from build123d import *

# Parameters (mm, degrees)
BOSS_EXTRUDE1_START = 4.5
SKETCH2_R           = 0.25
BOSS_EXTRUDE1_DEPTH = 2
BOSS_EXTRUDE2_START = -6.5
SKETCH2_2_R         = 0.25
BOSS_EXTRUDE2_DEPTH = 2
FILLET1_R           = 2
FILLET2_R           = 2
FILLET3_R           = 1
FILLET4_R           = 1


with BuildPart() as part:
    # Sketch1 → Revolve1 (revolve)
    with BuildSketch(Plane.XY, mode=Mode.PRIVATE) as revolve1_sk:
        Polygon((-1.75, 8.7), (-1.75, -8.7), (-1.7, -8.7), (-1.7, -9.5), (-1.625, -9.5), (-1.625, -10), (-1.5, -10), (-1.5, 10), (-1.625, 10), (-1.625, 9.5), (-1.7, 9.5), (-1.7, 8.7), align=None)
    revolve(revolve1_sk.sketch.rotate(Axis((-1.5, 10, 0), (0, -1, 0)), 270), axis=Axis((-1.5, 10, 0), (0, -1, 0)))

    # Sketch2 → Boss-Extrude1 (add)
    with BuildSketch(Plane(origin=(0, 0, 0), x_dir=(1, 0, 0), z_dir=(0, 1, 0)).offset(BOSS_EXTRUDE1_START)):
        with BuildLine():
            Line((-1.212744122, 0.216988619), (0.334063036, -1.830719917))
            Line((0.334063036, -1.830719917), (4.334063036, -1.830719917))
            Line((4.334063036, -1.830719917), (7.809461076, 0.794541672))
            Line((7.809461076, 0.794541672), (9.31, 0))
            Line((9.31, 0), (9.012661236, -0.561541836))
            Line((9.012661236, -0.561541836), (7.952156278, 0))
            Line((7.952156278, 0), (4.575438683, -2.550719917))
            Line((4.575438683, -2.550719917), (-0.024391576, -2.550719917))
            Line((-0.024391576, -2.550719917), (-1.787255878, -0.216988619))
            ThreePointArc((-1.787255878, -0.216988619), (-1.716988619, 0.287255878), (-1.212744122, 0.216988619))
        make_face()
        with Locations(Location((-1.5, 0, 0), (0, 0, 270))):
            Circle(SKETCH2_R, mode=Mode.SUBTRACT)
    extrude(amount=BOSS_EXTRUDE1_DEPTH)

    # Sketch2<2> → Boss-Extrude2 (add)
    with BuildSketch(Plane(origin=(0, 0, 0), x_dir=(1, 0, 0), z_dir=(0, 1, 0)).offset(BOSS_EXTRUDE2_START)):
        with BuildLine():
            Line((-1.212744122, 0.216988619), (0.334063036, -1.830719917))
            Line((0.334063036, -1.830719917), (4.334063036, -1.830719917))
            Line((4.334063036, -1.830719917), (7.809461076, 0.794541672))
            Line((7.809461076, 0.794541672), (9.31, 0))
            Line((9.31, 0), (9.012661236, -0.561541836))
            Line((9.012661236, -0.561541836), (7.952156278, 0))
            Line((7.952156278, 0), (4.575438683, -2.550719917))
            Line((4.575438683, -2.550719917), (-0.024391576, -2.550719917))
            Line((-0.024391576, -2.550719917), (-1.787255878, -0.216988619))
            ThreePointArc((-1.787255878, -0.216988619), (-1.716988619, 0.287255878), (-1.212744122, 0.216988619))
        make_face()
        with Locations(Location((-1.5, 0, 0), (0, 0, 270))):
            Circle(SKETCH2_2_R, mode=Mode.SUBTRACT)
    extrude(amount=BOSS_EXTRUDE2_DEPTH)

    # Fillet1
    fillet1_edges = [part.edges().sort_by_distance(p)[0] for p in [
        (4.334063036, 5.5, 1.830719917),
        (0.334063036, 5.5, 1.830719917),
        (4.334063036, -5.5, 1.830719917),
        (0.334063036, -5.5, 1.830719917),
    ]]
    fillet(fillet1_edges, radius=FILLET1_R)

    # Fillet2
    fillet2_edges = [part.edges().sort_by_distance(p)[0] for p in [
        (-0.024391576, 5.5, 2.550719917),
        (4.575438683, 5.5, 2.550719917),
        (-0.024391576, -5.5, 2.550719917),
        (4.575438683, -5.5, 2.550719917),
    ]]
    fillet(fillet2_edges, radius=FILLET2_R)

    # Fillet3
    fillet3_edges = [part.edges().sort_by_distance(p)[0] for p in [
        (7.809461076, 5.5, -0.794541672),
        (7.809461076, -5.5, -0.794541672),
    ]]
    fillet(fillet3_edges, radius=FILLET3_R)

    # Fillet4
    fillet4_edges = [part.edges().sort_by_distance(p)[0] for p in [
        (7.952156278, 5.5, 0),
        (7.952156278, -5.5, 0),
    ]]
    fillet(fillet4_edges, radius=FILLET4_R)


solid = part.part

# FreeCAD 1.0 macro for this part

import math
import FreeCAD as App
import Part
import Sketcher
Q = App.Units.Quantity


def edges_at(feature, points):
    """Names of the edges that pass closest to the given points."""
    edges = feature.Shape.Edges
    near = lambda p: min(range(len(edges)), key=lambda i: edges[i].distToShape(Part.Vertex(*p))[0])
    return sorted({f"Edge{near(p) + 1}" for p in points})


def add_polygon(sketch, points):
    """Adds a closed chain of lines whose ends are joined by coincident constraints."""
    first, n = sketch.GeometryCount, len(points)
    for a, b in zip(points, points[1:] + points[:1]):
        sketch.addGeometry(Part.LineSegment(App.Vector(*a, 0), App.Vector(*b, 0)), False)
    for i in range(n):
        sketch.addConstraint(Sketcher.Constraint("Coincident", first + i, 2, first + (i + 1) % n, 1))

doc = App.newDocument("Part")
body = doc.addObject("PartDesign::Body", "Body")

# Sketch on XY plane
sketch1 = doc.addObject("Sketcher::SketchObject", "Sketch")
body.addObject(sketch1)
sketch1.AttachmentSupport = (doc.XY_Plane, [""])
sketch1.MapMode = "FlatFace"
add_polygon(sketch1, [(-1.75, 8.7), (-1.75, -8.7), (-1.7, -8.7), (-1.7, -9.5), (-1.62, -9.5), (-1.62, -10), (-1.5, -10), (-1.5, 10), (-1.62, 10), (-1.62, 9.5), (-1.7, 9.5), (-1.7, 8.7)])  # lines 0-11
sketch1.addGeometry(Part.LineSegment(App.Vector(-1.5, 10, 0), App.Vector(-1.5, -10, 0)), True)  # axis
sketch1.addConstraint([
    Sketcher.Constraint("Vertical", 0),
    Sketcher.Constraint("Horizontal", 1),
    Sketcher.Constraint("Vertical", 2),
    Sketcher.Constraint("Horizontal", 3),
    Sketcher.Constraint("Vertical", 4),
    Sketcher.Constraint("Horizontal", 5),
    Sketcher.Constraint("Vertical", 6),
    Sketcher.Constraint("Horizontal", 7),
    Sketcher.Constraint("Vertical", 8),
    Sketcher.Constraint("Horizontal", 9),
    Sketcher.Constraint("Vertical", 10),
    Sketcher.Constraint("Horizontal", 11),
    Sketcher.Constraint("Vertical", 12),
    Sketcher.Constraint("Coincident", 12, 1, 6, 2),
    Sketcher.Constraint("Symmetric", 4, 2, 7, 2, -1),
    Sketcher.Constraint("Symmetric", 2, 2, 9, 2, -1),
    Sketcher.Constraint("Horizontal", 4, 2, 12, 2),
    Sketcher.Constraint("Equal", 2, 10),
    Sketcher.Constraint("DistanceY", 6, 1, 6, 2, Q("20 mm")),
    Sketcher.Constraint("DistanceY", 0, 2, 0, 1, Q("17.4 mm")),
    Sketcher.Constraint("DistanceY", 2, 2, 2, 1, Q("0.8 mm")),
    Sketcher.Constraint("DistanceX", 1, 1, 1, 2, Q("0.05 mm")),
    Sketcher.Constraint("DistanceX", 1, 2, -1, 1, Q("1.7 mm")),
    Sketcher.Constraint("DistanceX", 5, 2, -1, 1, Q("1.5 mm")),
    Sketcher.Constraint("DistanceX", 3, 1, 3, 2, Q("0.075 mm")),
])
revolution = doc.addObject("PartDesign::Revolution", "Revolution")
body.addObject(revolution)
revolution.Profile = sketch1
revolution.ReferenceAxis = (sketch1, ["Axis0"])
revolution.Angle = 360

# Sketch on XZ plane
sketch2 = doc.addObject("Sketcher::SketchObject", "Sketch001")
body.addObject(sketch2)
sketch2.AttachmentSupport = (doc.XZ_Plane, [""])
sketch2.MapMode = "FlatFace"
sketch2.AttachmentOffset = App.Placement(App.Vector(0, 0, -4.5), App.Rotation())
sketch2.addGeometry([
    Part.LineSegment(App.Vector(0.33, 1.83, 0), App.Vector(-1.21, -0.22, 0)),  # 0
    Part.ArcOfCircle(Part.Circle(App.Vector(-1.5, 0, 0), App.Vector(0, 0, 1), 0.36), math.radians(143), math.radians(323)),  # 1
    Part.LineSegment(App.Vector(-1.79, 0.22, 0), App.Vector(-0.02, 2.55, 0)),  # 2
    Part.LineSegment(App.Vector(-0.02, 2.55, 0), App.Vector(4.58, 2.55, 0)),  # 3
    Part.LineSegment(App.Vector(4.58, 2.55, 0), App.Vector(7.95, 0, 0)),  # 4
    Part.LineSegment(App.Vector(7.95, 0, 0), App.Vector(9.01, 0.56, 0)),  # 5
    Part.LineSegment(App.Vector(9.01, 0.56, 0), App.Vector(9.31, 0, 0)),  # 6
    Part.LineSegment(App.Vector(9.31, 0, 0), App.Vector(7.81, -0.79, 0)),  # 7
    Part.LineSegment(App.Vector(7.81, -0.79, 0), App.Vector(4.33, 1.83, 0)),  # 8
    Part.LineSegment(App.Vector(4.33, 1.83, 0), App.Vector(0.33, 1.83, 0)),  # 9
    Part.Circle(App.Vector(-1.5, 0, 0), App.Vector(0, 0, 1), 0.25),  # 10
], False)
sketch2.addConstraint([
    Sketcher.Constraint("Tangent", 0, 2, 1, 2),
    Sketcher.Constraint("Tangent", 1, 1, 2, 1),
    Sketcher.Constraint("Coincident", 2, 2, 3, 1),
    Sketcher.Constraint("Coincident", 3, 2, 4, 1),
    Sketcher.Constraint("Coincident", 4, 2, 5, 1),
    Sketcher.Constraint("Coincident", 5, 2, 6, 1),
    Sketcher.Constraint("Coincident", 6, 2, 7, 1),
    Sketcher.Constraint("Coincident", 7, 2, 8, 1),
    Sketcher.Constraint("Coincident", 8, 2, 9, 1),
    Sketcher.Constraint("Coincident", 9, 2, 0, 1),
    Sketcher.Constraint("Horizontal", 3),
    Sketcher.Constraint("Horizontal", 9),
    Sketcher.Constraint("Coincident", 10, 3, 1, 3),
    Sketcher.Constraint("PointOnObject", 1, 3, -1),
    Sketcher.Constraint("PointOnObject", 4, 2, -1),
    Sketcher.Constraint("PointOnObject", 6, 2, -1),
    Sketcher.Constraint("Parallel", 0, 2),
    Sketcher.Constraint("Perpendicular", 2, 4),
    Sketcher.Constraint("Perpendicular", 5, 6),
    Sketcher.Constraint("Perpendicular", 6, 7),
    Sketcher.Constraint("Parallel", 4, 8),
    Sketcher.Constraint("Diameter", 10, Q("0.5 mm")),
    Sketcher.Constraint("DistanceX", 9, 2, 9, 1, Q("4 mm")),
    Sketcher.Constraint("Radius", 1, Q("0.36 mm")),
    Sketcher.Constraint("Distance", 5, Q("1.2 mm")),
    Sketcher.Constraint("DistanceX", 1, 3, -1, 1, Q("1.5 mm")),
    Sketcher.Constraint("DistanceX", -1, 1, 6, 2, Q("9.31 mm")),
    Sketcher.Constraint("DistanceY", 8, 2, 3, 2, Q("0.72 mm")),
    Sketcher.Constraint("Distance", 8, Q("4.355501 mm")),
    Sketcher.Constraint("DistanceX", 3, 1, 3, 2, Q("4.59983 mm")),
    Sketcher.Constraint("DistanceX", 0, 2, 4, 2, Q("9.1649 mm")),
])
pad1 = doc.addObject("PartDesign::Pad", "Pad")
body.addObject(pad1)
pad1.Profile = sketch2
pad1.Length = 2
pad1.Reversed = True

# Sketch on XZ plane
sketch3 = doc.addObject("Sketcher::SketchObject", "Sketch002")
body.addObject(sketch3)
sketch3.AttachmentSupport = (doc.XZ_Plane, [""])
sketch3.MapMode = "FlatFace"
sketch3.AttachmentOffset = App.Placement(App.Vector(0, 0, 6.5), App.Rotation())
sketch3.addGeometry([
    Part.LineSegment(App.Vector(0.33, 1.83, 0), App.Vector(-1.21, -0.22, 0)),  # 0
    Part.ArcOfCircle(Part.Circle(App.Vector(-1.5, 0, 0), App.Vector(0, 0, 1), 0.36), math.radians(143), math.radians(323)),  # 1
    Part.LineSegment(App.Vector(-1.79, 0.22, 0), App.Vector(-0.02, 2.55, 0)),  # 2
    Part.LineSegment(App.Vector(-0.02, 2.55, 0), App.Vector(4.58, 2.55, 0)),  # 3
    Part.LineSegment(App.Vector(4.58, 2.55, 0), App.Vector(7.95, 0, 0)),  # 4
    Part.LineSegment(App.Vector(7.95, 0, 0), App.Vector(9.01, 0.56, 0)),  # 5
    Part.LineSegment(App.Vector(9.01, 0.56, 0), App.Vector(9.31, 0, 0)),  # 6
    Part.LineSegment(App.Vector(9.31, 0, 0), App.Vector(7.81, -0.79, 0)),  # 7
    Part.LineSegment(App.Vector(7.81, -0.79, 0), App.Vector(4.33, 1.83, 0)),  # 8
    Part.LineSegment(App.Vector(4.33, 1.83, 0), App.Vector(0.33, 1.83, 0)),  # 9
    Part.Circle(App.Vector(-1.5, 0, 0), App.Vector(0, 0, 1), 0.25),  # 10
], False)
sketch3.addConstraint([
    Sketcher.Constraint("Tangent", 0, 2, 1, 2),
    Sketcher.Constraint("Tangent", 1, 1, 2, 1),
    Sketcher.Constraint("Coincident", 2, 2, 3, 1),
    Sketcher.Constraint("Coincident", 3, 2, 4, 1),
    Sketcher.Constraint("Coincident", 4, 2, 5, 1),
    Sketcher.Constraint("Coincident", 5, 2, 6, 1),
    Sketcher.Constraint("Coincident", 6, 2, 7, 1),
    Sketcher.Constraint("Coincident", 7, 2, 8, 1),
    Sketcher.Constraint("Coincident", 8, 2, 9, 1),
    Sketcher.Constraint("Coincident", 9, 2, 0, 1),
    Sketcher.Constraint("Horizontal", 3),
    Sketcher.Constraint("Horizontal", 9),
    Sketcher.Constraint("Coincident", 10, 3, 1, 3),
    Sketcher.Constraint("PointOnObject", 1, 3, -1),
    Sketcher.Constraint("PointOnObject", 4, 2, -1),
    Sketcher.Constraint("PointOnObject", 6, 2, -1),
    Sketcher.Constraint("Parallel", 0, 2),
    Sketcher.Constraint("Perpendicular", 2, 4),
    Sketcher.Constraint("Perpendicular", 5, 6),
    Sketcher.Constraint("Perpendicular", 6, 7),
    Sketcher.Constraint("Parallel", 4, 8),
    Sketcher.Constraint("Diameter", 10, Q("0.5 mm")),
    Sketcher.Constraint("DistanceX", 9, 2, 9, 1, Q("4 mm")),
    Sketcher.Constraint("Radius", 1, Q("0.36 mm")),
    Sketcher.Constraint("Distance", 5, Q("1.2 mm")),
    Sketcher.Constraint("DistanceX", 1, 3, -1, 1, Q("1.5 mm")),
    Sketcher.Constraint("DistanceX", -1, 1, 6, 2, Q("9.31 mm")),
    Sketcher.Constraint("DistanceY", 8, 2, 3, 2, Q("0.72 mm")),
    Sketcher.Constraint("Distance", 8, Q("4.355501 mm")),
    Sketcher.Constraint("DistanceX", 3, 1, 3, 2, Q("4.59983 mm")),
    Sketcher.Constraint("DistanceX", 0, 2, 4, 2, Q("9.1649 mm")),
])
pad2 = doc.addObject("PartDesign::Pad", "Pad001")
body.addObject(pad2)
pad2.Profile = sketch3
pad2.Length = 2
pad2.Reversed = True
doc.recompute()

fillet = doc.addObject("PartDesign::Fillet", "Fillet")
body.addObject(fillet)
fillet.Base = (pad2, edges_at(pad2, [
    (4.334, 5.5, 1.831),
    (0.334, 5.5, 1.831),
    (4.334, -5.5, 1.831),
    (0.334, -5.5, 1.831),
]))
fillet.Radius = 2
doc.recompute()

fillet2 = doc.addObject("PartDesign::Fillet", "Fillet001")
body.addObject(fillet2)
fillet2.Base = (fillet, edges_at(fillet, [
    (-0.024, 5.5, 2.551),
    (4.575, 5.5, 2.551),
    (-0.024, -5.5, 2.551),
    (4.575, -5.5, 2.551),
]))
fillet2.Radius = 2
doc.recompute()

fillet3 = doc.addObject("PartDesign::Fillet", "Fillet002")
body.addObject(fillet3)
fillet3.Base = (fillet2, edges_at(fillet2, [(7.809, 5.5, -0.795), (7.809, -5.5, -0.795)]))
fillet3.Radius = 1
doc.recompute()

fillet4 = doc.addObject("PartDesign::Fillet", "Fillet003")
body.addObject(fillet4)
fillet4.Base = (fillet3, edges_at(fillet3, [(7.952, 5.5, 0), (7.952, -5.5, 0)]))
fillet4.Radius = 1

doc.recompute()
